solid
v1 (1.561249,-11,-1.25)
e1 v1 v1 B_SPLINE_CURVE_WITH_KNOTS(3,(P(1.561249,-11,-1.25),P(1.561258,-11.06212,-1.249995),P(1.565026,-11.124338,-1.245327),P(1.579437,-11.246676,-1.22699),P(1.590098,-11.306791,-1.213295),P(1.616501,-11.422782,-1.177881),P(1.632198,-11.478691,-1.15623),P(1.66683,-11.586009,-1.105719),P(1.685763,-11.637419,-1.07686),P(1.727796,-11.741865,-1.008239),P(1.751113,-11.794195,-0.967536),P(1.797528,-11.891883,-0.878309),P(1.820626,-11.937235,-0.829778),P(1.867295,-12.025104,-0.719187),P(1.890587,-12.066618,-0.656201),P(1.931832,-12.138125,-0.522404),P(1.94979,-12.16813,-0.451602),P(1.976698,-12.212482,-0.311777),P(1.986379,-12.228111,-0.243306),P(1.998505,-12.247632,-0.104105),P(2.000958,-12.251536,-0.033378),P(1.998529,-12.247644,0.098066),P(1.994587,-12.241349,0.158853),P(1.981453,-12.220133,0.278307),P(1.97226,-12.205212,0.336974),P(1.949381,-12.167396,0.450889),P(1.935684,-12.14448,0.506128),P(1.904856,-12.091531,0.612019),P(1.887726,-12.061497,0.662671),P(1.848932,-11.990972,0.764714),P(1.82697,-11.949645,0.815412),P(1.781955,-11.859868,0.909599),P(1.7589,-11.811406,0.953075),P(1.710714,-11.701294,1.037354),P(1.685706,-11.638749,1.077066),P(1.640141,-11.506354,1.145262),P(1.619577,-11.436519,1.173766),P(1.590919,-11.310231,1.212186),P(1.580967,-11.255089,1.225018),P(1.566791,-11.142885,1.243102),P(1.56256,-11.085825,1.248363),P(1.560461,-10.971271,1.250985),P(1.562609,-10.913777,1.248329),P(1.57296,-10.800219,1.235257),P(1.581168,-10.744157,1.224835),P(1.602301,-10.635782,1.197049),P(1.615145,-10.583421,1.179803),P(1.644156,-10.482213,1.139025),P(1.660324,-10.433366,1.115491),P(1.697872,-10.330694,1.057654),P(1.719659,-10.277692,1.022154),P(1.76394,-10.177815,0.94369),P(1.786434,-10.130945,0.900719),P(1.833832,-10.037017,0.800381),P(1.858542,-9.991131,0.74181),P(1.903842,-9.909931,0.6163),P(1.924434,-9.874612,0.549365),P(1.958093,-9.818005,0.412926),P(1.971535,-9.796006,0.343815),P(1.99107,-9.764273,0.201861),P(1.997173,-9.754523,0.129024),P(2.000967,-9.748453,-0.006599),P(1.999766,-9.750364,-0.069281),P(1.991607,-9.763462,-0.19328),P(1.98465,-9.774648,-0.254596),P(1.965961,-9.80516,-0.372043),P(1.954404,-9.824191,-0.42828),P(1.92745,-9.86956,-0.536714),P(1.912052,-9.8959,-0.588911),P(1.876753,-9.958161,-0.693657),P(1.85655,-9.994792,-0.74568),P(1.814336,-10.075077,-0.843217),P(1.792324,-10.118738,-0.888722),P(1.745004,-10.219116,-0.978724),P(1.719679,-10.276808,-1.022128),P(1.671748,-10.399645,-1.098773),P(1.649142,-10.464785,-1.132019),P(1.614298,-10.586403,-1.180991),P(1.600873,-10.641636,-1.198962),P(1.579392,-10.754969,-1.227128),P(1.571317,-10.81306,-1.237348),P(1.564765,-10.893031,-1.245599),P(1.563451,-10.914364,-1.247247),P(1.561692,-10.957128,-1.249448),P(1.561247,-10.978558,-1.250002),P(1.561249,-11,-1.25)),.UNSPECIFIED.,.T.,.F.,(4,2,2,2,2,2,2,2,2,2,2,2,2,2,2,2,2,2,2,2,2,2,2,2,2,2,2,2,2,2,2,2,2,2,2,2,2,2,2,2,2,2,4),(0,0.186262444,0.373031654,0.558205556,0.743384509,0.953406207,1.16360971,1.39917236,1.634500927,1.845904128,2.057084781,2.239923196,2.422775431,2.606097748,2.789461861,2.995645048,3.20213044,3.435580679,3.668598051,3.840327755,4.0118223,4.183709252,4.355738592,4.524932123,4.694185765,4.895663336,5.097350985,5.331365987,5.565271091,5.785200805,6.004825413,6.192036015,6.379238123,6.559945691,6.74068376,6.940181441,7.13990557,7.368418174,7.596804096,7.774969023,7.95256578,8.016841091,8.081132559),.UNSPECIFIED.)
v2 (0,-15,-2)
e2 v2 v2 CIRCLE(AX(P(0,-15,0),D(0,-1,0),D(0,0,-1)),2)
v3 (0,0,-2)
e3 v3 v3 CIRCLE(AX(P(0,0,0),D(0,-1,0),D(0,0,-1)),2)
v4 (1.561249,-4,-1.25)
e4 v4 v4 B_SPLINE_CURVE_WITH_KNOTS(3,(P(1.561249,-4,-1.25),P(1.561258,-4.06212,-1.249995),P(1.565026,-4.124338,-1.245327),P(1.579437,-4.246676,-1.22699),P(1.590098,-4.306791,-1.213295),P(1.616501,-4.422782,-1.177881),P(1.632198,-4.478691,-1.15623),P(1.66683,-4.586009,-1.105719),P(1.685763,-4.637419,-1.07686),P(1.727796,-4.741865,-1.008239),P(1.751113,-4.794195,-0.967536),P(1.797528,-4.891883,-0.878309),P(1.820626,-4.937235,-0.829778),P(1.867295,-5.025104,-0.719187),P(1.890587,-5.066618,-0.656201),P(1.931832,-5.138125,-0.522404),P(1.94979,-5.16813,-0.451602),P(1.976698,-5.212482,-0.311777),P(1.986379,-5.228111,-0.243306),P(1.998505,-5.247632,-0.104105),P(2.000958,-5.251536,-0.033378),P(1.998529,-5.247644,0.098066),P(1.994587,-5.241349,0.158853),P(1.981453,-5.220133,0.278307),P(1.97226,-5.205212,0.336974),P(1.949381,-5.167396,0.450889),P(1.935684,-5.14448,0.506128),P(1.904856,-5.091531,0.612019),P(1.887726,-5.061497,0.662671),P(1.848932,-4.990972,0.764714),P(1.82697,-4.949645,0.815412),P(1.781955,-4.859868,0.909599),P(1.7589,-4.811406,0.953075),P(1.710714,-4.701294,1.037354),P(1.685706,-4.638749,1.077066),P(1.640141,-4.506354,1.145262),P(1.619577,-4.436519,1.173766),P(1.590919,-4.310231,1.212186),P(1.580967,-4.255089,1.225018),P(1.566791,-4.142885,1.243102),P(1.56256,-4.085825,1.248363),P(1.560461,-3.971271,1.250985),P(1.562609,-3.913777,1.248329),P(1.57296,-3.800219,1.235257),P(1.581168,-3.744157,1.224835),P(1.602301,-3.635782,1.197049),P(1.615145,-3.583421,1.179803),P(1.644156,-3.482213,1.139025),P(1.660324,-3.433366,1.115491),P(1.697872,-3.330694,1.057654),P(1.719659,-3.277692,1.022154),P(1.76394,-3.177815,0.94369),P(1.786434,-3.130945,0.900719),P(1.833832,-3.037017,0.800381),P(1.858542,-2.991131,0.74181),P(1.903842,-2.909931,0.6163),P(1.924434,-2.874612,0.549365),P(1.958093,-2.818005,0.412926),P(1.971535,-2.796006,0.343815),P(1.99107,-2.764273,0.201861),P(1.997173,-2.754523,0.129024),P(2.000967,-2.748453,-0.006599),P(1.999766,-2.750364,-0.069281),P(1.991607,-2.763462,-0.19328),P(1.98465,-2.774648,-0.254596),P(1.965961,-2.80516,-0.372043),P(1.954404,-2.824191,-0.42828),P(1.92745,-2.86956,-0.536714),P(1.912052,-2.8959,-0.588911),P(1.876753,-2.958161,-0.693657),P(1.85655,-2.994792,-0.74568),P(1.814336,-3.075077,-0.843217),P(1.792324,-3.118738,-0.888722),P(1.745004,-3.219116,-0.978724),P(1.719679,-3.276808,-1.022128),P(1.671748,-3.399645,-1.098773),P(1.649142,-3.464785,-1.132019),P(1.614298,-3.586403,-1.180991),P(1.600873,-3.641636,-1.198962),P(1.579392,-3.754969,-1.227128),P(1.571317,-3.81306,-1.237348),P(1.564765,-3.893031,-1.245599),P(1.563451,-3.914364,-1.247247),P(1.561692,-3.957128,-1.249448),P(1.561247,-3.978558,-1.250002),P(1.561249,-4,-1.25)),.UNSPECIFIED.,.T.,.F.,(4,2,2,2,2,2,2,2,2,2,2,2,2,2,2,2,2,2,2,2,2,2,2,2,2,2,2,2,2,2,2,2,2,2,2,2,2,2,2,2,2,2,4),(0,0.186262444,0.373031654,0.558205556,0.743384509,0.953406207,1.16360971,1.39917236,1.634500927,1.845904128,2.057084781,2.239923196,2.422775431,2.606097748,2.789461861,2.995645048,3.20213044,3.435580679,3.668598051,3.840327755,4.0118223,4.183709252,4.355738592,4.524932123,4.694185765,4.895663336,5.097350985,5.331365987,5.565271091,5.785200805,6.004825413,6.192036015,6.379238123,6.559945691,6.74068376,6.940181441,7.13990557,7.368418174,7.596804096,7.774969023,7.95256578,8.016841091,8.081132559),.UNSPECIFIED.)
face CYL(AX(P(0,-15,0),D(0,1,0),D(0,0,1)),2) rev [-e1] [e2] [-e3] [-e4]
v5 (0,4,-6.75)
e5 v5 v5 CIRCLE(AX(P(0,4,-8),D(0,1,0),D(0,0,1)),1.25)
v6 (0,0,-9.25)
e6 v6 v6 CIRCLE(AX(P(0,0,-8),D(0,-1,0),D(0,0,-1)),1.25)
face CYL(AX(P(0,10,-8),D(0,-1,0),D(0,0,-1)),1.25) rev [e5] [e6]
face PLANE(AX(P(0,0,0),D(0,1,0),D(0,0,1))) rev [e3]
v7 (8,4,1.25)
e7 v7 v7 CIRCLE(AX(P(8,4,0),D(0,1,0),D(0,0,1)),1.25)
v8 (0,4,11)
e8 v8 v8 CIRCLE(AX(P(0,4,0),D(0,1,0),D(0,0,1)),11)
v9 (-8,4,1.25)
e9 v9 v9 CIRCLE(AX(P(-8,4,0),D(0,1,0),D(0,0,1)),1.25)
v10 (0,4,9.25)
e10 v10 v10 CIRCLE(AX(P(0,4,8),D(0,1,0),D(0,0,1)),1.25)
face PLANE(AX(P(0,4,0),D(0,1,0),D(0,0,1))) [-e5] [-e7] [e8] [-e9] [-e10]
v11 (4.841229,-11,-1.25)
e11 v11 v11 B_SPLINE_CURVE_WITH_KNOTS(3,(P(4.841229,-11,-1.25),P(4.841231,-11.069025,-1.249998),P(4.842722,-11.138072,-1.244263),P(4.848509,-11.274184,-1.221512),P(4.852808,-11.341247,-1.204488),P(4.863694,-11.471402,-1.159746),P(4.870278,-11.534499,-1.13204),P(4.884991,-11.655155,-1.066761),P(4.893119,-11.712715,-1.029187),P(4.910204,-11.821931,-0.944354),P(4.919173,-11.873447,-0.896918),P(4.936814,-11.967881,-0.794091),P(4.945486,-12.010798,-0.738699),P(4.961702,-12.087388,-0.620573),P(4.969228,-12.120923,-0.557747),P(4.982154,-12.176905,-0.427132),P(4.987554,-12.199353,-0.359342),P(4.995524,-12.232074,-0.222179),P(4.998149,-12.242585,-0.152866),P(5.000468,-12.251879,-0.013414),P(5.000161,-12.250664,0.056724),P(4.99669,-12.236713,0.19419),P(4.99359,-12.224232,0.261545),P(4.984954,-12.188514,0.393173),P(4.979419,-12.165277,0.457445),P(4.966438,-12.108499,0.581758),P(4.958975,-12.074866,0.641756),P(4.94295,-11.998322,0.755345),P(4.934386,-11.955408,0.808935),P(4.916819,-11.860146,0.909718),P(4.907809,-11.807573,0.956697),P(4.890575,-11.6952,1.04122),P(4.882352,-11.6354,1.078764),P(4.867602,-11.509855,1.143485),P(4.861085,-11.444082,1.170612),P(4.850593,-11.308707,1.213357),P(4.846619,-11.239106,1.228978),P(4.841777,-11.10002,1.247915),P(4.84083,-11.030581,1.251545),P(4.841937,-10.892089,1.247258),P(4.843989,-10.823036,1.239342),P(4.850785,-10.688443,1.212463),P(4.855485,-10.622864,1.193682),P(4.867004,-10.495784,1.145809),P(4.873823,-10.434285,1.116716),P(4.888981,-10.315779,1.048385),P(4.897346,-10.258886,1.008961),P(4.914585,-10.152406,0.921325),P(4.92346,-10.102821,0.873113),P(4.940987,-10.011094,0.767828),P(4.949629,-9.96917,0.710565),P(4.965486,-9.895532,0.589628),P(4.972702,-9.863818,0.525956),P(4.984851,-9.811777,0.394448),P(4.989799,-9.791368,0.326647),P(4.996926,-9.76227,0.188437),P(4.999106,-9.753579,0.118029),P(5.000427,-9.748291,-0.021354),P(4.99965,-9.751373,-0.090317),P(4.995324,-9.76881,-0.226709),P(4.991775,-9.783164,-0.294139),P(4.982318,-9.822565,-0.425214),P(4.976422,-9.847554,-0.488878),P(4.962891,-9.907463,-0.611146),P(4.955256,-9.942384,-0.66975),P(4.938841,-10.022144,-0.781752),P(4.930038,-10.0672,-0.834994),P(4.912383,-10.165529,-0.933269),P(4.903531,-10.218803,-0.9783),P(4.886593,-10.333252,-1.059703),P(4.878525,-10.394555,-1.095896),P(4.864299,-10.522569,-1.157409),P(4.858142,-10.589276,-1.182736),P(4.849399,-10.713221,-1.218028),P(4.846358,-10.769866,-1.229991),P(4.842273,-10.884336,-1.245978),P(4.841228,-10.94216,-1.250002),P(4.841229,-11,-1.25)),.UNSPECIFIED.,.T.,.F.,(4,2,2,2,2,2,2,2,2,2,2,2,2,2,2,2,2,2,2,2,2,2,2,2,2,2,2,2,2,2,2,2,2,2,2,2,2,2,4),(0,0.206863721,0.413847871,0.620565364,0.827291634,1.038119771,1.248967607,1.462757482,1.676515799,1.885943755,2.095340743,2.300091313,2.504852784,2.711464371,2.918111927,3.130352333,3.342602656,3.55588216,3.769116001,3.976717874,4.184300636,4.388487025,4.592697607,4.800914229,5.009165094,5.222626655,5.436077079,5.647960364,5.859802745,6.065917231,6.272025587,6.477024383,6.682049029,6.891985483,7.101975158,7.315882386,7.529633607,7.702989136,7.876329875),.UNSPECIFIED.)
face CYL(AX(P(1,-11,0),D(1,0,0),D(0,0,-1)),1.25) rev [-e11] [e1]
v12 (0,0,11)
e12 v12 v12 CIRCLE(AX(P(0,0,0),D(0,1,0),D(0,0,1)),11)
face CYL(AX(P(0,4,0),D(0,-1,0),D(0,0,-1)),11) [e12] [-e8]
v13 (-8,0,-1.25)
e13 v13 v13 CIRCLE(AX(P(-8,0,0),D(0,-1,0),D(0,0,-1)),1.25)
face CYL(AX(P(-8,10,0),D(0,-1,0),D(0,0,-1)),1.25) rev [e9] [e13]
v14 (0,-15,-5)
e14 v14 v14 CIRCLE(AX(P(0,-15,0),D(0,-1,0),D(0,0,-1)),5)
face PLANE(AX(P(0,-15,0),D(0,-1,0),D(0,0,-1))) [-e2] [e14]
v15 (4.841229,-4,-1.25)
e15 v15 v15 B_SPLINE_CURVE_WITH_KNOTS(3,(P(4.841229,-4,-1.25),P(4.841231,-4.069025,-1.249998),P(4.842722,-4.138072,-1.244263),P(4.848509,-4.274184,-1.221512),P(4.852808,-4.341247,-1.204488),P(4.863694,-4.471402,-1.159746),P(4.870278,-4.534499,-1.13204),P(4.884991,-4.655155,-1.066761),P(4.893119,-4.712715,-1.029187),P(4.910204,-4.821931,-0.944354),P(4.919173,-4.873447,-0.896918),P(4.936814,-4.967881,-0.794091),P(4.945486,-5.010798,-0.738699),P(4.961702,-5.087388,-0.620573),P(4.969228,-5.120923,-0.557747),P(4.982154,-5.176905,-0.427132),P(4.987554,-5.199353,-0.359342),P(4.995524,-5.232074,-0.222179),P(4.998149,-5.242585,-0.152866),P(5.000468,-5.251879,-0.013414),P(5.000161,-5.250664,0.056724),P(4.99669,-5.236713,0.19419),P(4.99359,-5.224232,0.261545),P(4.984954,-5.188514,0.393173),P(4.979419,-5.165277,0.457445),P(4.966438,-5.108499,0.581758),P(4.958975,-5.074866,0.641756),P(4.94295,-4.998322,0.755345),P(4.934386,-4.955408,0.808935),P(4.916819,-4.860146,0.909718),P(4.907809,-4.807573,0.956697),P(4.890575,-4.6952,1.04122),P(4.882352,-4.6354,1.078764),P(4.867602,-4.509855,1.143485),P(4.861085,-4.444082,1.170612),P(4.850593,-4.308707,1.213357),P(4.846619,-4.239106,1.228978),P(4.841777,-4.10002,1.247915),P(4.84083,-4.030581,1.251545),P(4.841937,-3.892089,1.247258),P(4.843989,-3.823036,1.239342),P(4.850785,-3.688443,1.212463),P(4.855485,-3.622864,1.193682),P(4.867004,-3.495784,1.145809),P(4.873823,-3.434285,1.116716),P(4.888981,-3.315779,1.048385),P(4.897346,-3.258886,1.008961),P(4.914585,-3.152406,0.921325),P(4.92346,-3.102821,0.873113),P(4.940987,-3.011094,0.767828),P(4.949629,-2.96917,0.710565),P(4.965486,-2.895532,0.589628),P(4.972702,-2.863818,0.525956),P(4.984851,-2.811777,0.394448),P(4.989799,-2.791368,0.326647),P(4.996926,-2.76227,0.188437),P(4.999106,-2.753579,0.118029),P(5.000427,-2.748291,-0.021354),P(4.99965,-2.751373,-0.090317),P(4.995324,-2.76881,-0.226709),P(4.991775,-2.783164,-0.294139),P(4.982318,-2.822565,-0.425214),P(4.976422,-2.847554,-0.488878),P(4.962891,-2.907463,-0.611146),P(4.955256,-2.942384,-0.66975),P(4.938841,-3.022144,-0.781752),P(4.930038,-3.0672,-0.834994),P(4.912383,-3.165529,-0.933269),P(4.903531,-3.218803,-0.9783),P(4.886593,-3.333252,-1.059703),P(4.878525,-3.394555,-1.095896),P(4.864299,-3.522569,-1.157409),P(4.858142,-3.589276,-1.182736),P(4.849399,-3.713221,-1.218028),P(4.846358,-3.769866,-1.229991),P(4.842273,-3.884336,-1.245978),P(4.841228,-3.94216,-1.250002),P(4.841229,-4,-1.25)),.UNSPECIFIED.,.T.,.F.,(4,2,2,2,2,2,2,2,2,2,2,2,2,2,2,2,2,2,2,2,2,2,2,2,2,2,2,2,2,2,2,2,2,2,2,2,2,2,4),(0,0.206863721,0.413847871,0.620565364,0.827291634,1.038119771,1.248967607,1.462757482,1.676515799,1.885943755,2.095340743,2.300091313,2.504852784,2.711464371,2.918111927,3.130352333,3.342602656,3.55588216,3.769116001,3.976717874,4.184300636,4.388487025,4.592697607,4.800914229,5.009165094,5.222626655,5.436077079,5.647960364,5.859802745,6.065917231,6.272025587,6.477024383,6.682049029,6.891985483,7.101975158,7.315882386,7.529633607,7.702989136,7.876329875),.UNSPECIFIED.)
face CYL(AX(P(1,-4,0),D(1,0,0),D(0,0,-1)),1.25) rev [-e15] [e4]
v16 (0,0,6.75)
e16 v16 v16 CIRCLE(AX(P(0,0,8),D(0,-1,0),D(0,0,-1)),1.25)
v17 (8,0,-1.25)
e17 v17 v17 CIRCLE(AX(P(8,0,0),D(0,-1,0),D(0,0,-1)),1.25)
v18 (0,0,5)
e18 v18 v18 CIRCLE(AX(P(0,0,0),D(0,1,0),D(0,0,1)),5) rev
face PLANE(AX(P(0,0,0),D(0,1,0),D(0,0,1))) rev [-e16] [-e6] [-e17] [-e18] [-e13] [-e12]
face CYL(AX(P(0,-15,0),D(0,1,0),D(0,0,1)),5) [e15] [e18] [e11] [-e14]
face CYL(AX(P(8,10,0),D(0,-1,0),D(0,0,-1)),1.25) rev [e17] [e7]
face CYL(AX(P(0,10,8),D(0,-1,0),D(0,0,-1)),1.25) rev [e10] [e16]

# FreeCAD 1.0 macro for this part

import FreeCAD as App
import Part
import Sketcher

V = App.Vector
Q = App.Units.Quantity

doc = App.newDocument("Part")
body = doc.addObject("PartDesign::Body", "Body")

# Sketch on XZ plane
sketch1 = body.newObject("Sketcher::SketchObject", "Sketch")
sketch1.AttachmentSupport = (doc.getObject("XZ_Plane"), [""])
sketch1.MapMode = "FlatFace"
sketch1.addGeometry(Part.Circle(V(0, 0, 0), V(0, 0, 1), 11), False)
sketch1.addConstraint(Sketcher.Constraint("Coincident", 0, 3, -1, 1))
sketch1.addConstraint(Sketcher.Constraint("Diameter", 0, Q("22 mm")))
pad1 = body.newObject("PartDesign::Pad", "Pad")
pad1.Profile = sketch1
pad1.Length = 4
pad1.Reversed = True

# Sketch on XZ plane
sketch2 = body.newObject("Sketcher::SketchObject", "Sketch001")
sketch2.AttachmentSupport = (doc.getObject("XZ_Plane"), [""])
sketch2.MapMode = "FlatFace"
sketch2.addGeometry(Part.Circle(V(0, 0, 0), V(0, 0, 1), 5), False)
sketch2.addGeometry(Part.Circle(V(0, 0, 0), V(0, 0, 1), 2), False)
sketch2.addConstraint(Sketcher.Constraint("Coincident", 0, 3, -1, 1))
sketch2.addConstraint(Sketcher.Constraint("Coincident", 1, 3, -1, 1))
sketch2.addConstraint(Sketcher.Constraint("Diameter", 0, Q("10 mm")))
sketch2.addConstraint(Sketcher.Constraint("Diameter", 1, Q("4 mm")))
pad2 = body.newObject("PartDesign::Pad", "Pad001")
pad2.Profile = sketch2
pad2.Length = 15

# Sketch on XZ plane
sketch3 = body.newObject("Sketcher::SketchObject", "Sketch002")
sketch3.AttachmentSupport = (doc.getObject("XZ_Plane"), [""])
sketch3.MapMode = "FlatFace"
sketch3.addGeometry(Part.Circle(V(0, -8, 0), V(0, 0, 1), 1.2), False)
sketch3.addGeometry(Part.Circle(V(-8, 0, 0), V(0, 0, 1), 1.2), False)
sketch3.addGeometry(Part.Circle(V(0, 8, 0), V(0, 0, 1), 1.2), False)
sketch3.addGeometry(Part.Circle(V(8, 0, 0), V(0, 0, 1), 1.2), False)
sketch3.addConstraint(Sketcher.Constraint("Equal", 0, 1))
sketch3.addConstraint(Sketcher.Constraint("Equal", 1, 2))
sketch3.addConstraint(Sketcher.Constraint("Equal", 2, 3))
sketch3.addConstraint(Sketcher.Constraint("Symmetric", 0, 3, 2, 3, -1, 1))
sketch3.addConstraint(Sketcher.Constraint("Symmetric", 1, 3, 3, 3, -1, 1))
sketch3.addConstraint(Sketcher.Constraint("PointOnObject", 0, 3, -2))
sketch3.addConstraint(Sketcher.Constraint("PointOnObject", 1, 3, -1))
sketch3.addConstraint(Sketcher.Constraint("Diameter", 0, Q("2.5 mm")))
sketch3.addConstraint(Sketcher.Constraint("DistanceY", 0, 3, -1, 1, Q("8 mm")))
sketch3.addConstraint(Sketcher.Constraint("DistanceX", 1, 3, -1, 1, Q("8 mm")))
pocket1 = body.newObject("PartDesign::Pocket", "Pocket")
pocket1.Profile = sketch3
pocket1.Length = 10

# Sketch on YZ plane
sketch4 = body.newObject("Sketcher::SketchObject", "Sketch003")
sketch4.AttachmentSupport = (doc.getObject("YZ_Plane"), [""])
sketch4.MapMode = "FlatFace"
sketch4.AttachmentOffset = App.Placement(V(0, 0, 5), App.Rotation())
sketch4.addGeometry(Part.Circle(V(-4, 0, 0), V(0, 0, 1), 1.2), False)
sketch4.addGeometry(Part.Circle(V(-11, 0, 0), V(0, 0, 1), 1.2), False)
sketch4.addConstraint(Sketcher.Constraint("Equal", 0, 1))
sketch4.addConstraint(Sketcher.Constraint("PointOnObject", 0, 3, -1))
sketch4.addConstraint(Sketcher.Constraint("PointOnObject", 1, 3, -1))
sketch4.addConstraint(Sketcher.Constraint("Diameter", 0, Q("2.5 mm")))
sketch4.addConstraint(Sketcher.Constraint("DistanceX", 0, 3, -1, 1, Q("4 mm")))
sketch4.addConstraint(Sketcher.Constraint("DistanceX", 1, 3, -1, 1, Q("11 mm")))
pocket2 = body.newObject("PartDesign::Pocket", "Pocket001")
pocket2.Profile = sketch4
pocket2.Length = 4

doc.recompute()
